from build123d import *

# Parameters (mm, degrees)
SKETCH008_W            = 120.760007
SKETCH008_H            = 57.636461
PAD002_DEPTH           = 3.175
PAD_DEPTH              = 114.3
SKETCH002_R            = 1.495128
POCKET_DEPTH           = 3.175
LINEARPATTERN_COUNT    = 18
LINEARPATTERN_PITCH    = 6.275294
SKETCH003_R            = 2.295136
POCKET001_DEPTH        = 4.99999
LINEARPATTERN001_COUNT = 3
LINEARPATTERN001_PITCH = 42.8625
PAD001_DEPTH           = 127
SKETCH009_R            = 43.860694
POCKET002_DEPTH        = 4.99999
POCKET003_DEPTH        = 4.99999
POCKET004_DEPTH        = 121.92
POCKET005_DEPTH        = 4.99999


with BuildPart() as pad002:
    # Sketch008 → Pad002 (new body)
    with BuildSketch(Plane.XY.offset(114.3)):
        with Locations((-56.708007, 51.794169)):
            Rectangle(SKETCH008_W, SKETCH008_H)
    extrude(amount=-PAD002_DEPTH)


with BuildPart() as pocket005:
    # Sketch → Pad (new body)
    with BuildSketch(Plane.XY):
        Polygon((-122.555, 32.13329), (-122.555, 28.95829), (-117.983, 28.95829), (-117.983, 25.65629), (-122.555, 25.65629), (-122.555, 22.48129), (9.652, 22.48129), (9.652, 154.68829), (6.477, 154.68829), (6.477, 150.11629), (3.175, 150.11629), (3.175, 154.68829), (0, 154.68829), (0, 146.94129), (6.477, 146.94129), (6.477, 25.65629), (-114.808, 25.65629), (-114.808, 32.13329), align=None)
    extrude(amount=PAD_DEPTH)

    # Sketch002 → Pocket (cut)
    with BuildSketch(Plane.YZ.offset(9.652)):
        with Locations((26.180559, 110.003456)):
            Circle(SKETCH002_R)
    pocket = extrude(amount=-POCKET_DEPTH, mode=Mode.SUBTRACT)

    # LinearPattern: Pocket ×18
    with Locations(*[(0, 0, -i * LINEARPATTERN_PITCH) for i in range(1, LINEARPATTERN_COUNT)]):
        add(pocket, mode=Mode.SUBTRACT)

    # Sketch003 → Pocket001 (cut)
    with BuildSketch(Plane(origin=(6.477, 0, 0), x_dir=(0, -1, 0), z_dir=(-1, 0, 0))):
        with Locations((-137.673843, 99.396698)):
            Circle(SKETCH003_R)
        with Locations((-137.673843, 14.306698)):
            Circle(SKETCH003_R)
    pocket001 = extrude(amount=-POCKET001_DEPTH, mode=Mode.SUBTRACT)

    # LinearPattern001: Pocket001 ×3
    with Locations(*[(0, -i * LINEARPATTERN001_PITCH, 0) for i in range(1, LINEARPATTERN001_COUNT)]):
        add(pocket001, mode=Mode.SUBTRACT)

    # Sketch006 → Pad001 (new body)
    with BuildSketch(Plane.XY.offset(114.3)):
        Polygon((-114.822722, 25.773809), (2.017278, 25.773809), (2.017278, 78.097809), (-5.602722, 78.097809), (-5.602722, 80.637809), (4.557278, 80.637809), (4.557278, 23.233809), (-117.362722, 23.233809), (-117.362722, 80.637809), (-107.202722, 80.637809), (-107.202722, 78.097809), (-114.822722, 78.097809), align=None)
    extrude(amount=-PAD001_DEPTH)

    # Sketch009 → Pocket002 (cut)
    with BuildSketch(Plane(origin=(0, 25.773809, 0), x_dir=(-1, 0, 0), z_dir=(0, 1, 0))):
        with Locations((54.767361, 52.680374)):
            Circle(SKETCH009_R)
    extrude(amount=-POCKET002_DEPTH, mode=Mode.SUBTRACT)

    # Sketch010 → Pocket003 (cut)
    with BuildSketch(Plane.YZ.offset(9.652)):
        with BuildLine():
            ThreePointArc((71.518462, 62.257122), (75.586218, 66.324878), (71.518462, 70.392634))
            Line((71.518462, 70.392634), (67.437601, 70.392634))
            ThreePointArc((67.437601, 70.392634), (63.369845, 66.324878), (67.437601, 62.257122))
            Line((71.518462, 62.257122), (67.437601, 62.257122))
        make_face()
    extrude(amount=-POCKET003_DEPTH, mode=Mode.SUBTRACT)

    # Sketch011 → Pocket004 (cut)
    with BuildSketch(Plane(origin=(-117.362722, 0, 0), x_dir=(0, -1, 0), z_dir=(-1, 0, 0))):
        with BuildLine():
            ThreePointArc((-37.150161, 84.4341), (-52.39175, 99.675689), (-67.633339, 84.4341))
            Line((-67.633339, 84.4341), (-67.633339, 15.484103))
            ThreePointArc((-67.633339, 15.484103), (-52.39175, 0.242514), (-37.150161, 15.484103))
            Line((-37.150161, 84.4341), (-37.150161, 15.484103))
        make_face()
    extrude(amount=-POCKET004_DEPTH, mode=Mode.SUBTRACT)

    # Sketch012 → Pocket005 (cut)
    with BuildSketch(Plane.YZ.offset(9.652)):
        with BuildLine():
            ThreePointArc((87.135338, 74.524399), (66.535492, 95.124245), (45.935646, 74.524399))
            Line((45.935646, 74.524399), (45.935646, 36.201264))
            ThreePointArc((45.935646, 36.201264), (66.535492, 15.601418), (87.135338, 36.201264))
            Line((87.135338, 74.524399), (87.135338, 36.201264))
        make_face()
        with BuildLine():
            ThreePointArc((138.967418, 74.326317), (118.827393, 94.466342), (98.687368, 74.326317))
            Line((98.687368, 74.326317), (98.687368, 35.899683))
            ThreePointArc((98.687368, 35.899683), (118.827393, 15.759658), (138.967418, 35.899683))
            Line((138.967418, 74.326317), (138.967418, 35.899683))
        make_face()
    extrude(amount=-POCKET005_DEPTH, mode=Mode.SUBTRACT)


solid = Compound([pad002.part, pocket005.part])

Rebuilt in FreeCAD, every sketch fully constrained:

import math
import FreeCAD as App
import Part
import Sketcher
from FreeCAD import Vector
Q = App.Units.Quantity


def add_polygon(sketch, points):
    """Adds a closed chain of lines whose ends are joined by coincident constraints."""
    first, n = sketch.GeometryCount, len(points)
    for a, b in zip(points, points[1:] + points[:1]):
        sketch.addGeometry(Part.LineSegment(App.Vector(*a, 0), App.Vector(*b, 0)), False)
    for i in range(n):
        sketch.addConstraint(Sketcher.Constraint("Coincident", first + i, 2, first + (i + 1) % n, 1))

doc = App.newDocument("Part")
body = doc.addObject("PartDesign::Body", "Body")

# Sketch on XY plane
sketch1 = body.newObject("Sketcher::SketchObject", "Sketch")
sketch1.AttachmentSupport = (doc.getObject("XY_Plane"), [""])
sketch1.MapMode = "FlatFace"
sketch1.AttachmentOffset = App.Placement(Vector(0, 0, 4.5 * 25.4), App.Rotation())
add_polygon(sketch1, [(-117, 81), (-117, 23), (4, 23), (4, 81)])  # lines 0-3
sketch1.addConstraint([
    Sketcher.Constraint("Vertical", 0),
    Sketcher.Constraint("Horizontal", 1),
    Sketcher.Constraint("Vertical", 2),
    Sketcher.Constraint("Horizontal", 3),
    Sketcher.Constraint("DistanceY", 0, 2, 0, 1, 57.636461),
    Sketcher.Constraint("DistanceY", -1, 1, 2, 2, 80.612399),
    Sketcher.Constraint("DistanceX", 1, 1, 1, 2, 120.760007),
    Sketcher.Constraint("DistanceX", 0, 2, -1, 1, 117.08801),
])
pad1 = body.newObject("PartDesign::Pad", "Pad")
pad1.Profile = sketch1
pad1.Length = Q("0.125 in")
pad1.Reversed = True
body2 = doc.addObject("PartDesign::Body", "Body001")

# Sketch on XY plane
sketch2 = body2.newObject("Sketcher::SketchObject", "Sketch001")
sketch2.AttachmentSupport = (doc.getObject("XY_Plane001"), [""])
sketch2.MapMode = "FlatFace"
add_polygon(sketch2, [(-122.6, 32.1), (-122.6, 29), (-118, 29), (-118, 25.7), (-122.6, 25.7), (-122.6, 22.5), (9.7, 22.5), (9.7, 154.7), (6.5, 154.7), (6.5, 150.1), (3.2, 150.1), (3.2, 154.7), (0, 154.7), (0, 146.9), (6.5, 146.9), (6.5, 25.7), (-114.8, 25.7), (-114.8, 32.1)])  # lines 0-17
sketch2.addConstraint([
    Sketcher.Constraint("Vertical", 0),
    Sketcher.Constraint("Horizontal", 1),
    Sketcher.Constraint("Vertical", 2),
    Sketcher.Constraint("Horizontal", 3),
    Sketcher.Constraint("Vertical", 4),
    Sketcher.Constraint("Horizontal", 5),
    Sketcher.Constraint("Vertical", 6),
    Sketcher.Constraint("Horizontal", 7),
    Sketcher.Constraint("Vertical", 8),
    Sketcher.Constraint("Horizontal", 9),
    Sketcher.Constraint("Vertical", 10),
    Sketcher.Constraint("Horizontal", 11),
    Sketcher.Constraint("Vertical", 12),
    Sketcher.Constraint("Horizontal", 13),
    Sketcher.Constraint("Vertical", 14),
    Sketcher.Constraint("Horizontal", 15),
    Sketcher.Constraint("Vertical", 16),
    Sketcher.Constraint("Horizontal", 17),
    Sketcher.Constraint("PointOnObject", 11, 2, -2),
    Sketcher.Constraint("Horizontal", 7, 2, 10, 2),
    Sketcher.Constraint("Horizontal", 3, 2, 14, 2),
    Sketcher.Constraint("Vertical", 0, 2, 3, 2),
    Sketcher.Constraint("Vertical", 8, 2, 13, 2),
    Sketcher.Constraint("Equal", 7, 11),
    Sketcher.Constraint("Equal", 11, 0),
    Sketcher.Constraint("Equal", 9, 2),
    Sketcher.Constraint("Equal", 0, 4),
    Sketcher.Constraint("Equal", 5, 6),
    Sketcher.Constraint("Equal", 3, 8),
    Sketcher.Constraint("Equal", 17, 12),
    Sketcher.Constraint("DistanceX", 1, 1, 1, 2, Q("0.18 in")),
    Sketcher.Constraint("DistanceX", 9, 2, 9, 1, Q("0.13 in")),
    Sketcher.Constraint("DistanceX", 1, 2, 7, 2, Q("4.9 in")),
    Sketcher.Constraint("DistanceX", 5, 1, 5, 2, Q("5.205 in")),
    Sketcher.Constraint("DistanceX", 15, 2, 15, 1, Q("4.775 in")),
    Sketcher.Constraint("DistanceY", -1, 1, 0, 2, 28.95829),
])
pad2 = body2.newObject("PartDesign::Pad", "Pad001")
pad2.Profile = sketch2
pad2.Length = Q("4.5 in")

# Sketch on YZ plane
sketch3 = body2.newObject("Sketcher::SketchObject", "Sketch002")
sketch3.AttachmentSupport = (doc.getObject("YZ_Plane001"), [""])
sketch3.MapMode = "FlatFace"
sketch3.AttachmentOffset = App.Placement(Vector(0, 0, 0.38 * 25.4), App.Rotation())
sketch3.addGeometry(Part.Circle(Vector(26.2, 110, 0), Vector(0, 0, 1), 1.5), False)
sketch3.addConstraint([
    Sketcher.Constraint("Diameter", 0, 2.990256),
    Sketcher.Constraint("DistanceX", -1, 1, 0, 3, 26.180559),
    Sketcher.Constraint("DistanceY", -1, 1, 0, 3, 110.003456),
])
pocket1 = body2.newObject("PartDesign::Pocket", "Pocket")
pocket1.Profile = sketch3
pocket1.Length = Q("0.125 in")
doc.recompute()

linearpattern = body2.newObject("PartDesign::LinearPattern", "LinearPattern")
linearpattern.Originals = [pocket1]
linearpattern.Direction = (doc.getObject("Z_Axis001"), [""])
linearpattern.Mode = "offset"
linearpattern.Offset = 6.275294
linearpattern.Occurrences = 18
linearpattern.Reversed = True
body2.Tip = linearpattern

# Sketch on YZ plane
sketch4 = body2.newObject("Sketcher::SketchObject", "Sketch003")
sketch4.AttachmentSupport = (doc.getObject("YZ_Plane001"), [""])
sketch4.MapMode = "FlatFace"
sketch4.AttachmentOffset = App.Placement(Vector(0, 0, 0.255 * 25.4), App.Rotation())
sketch4.addGeometry([
    Part.Circle(Vector(137.7, 99.4, 0), Vector(0, 0, 1), 2.3),
    Part.Circle(Vector(137.7, 14.3, 0), Vector(0, 0, 1), 2.3),
], False)
sketch4.addConstraint([
    Sketcher.Constraint("Equal", 0, 1),
    Sketcher.Constraint("Vertical", 0, 3, 1, 3),
    Sketcher.Constraint("DistanceY", 1, 3, 0, 3, Q("3.35 in")),
    Sketcher.Constraint("Diameter", 0, 4.590272),
    Sketcher.Constraint("DistanceY", -1, 1, 0, 3, 99.396698),
    Sketcher.Constraint("DistanceX", -1, 1, 0, 3, 137.673843),
])
pocket2 = body2.newObject("PartDesign::Pocket", "Pocket001")
pocket2.Profile = sketch4
pocket2.Length = 4.99999
pocket2.Reversed = True
doc.recompute()

linearpattern2 = body2.newObject("PartDesign::LinearPattern", "LinearPattern001")
linearpattern2.Originals = [pocket2]
linearpattern2.Direction = (doc.getObject("Y_Axis001"), [""])
linearpattern2.Mode = "offset"
linearpattern2.Offset = Q("1.6875 in")
linearpattern2.Occurrences = 3
linearpattern2.Reversed = True
body2.Tip = linearpattern2

# Sketch on XY plane
sketch5 = body2.newObject("Sketcher::SketchObject", "Sketch004")
sketch5.AttachmentSupport = (doc.getObject("XY_Plane001"), [""])
sketch5.MapMode = "FlatFace"
sketch5.AttachmentOffset = App.Placement(Vector(0, 0, 4.5 * 25.4), App.Rotation())
add_polygon(sketch5, [(2, 25.8), (-114.8, 25.8), (-114.8, 78.1), (-107.2, 78.1), (-107.2, 80.6), (-117.4, 80.6), (-117.4, 23.2), (4.6, 23.2), (4.6, 80.6), (-5.6, 80.6), (-5.6, 78.1), (2, 78.1)])  # lines 0-11
sketch5.addConstraint([
    Sketcher.Constraint("Horizontal", 0),
    Sketcher.Constraint("Vertical", 1),
    Sketcher.Constraint("Horizontal", 2),
    Sketcher.Constraint("Vertical", 3),
    Sketcher.Constraint("Horizontal", 4),
    Sketcher.Constraint("Vertical", 5),
    Sketcher.Constraint("Horizontal", 6),
    Sketcher.Constraint("Vertical", 7),
    Sketcher.Constraint("Horizontal", 8),
    Sketcher.Constraint("Vertical", 9),
    Sketcher.Constraint("Horizontal", 10),
    Sketcher.Constraint("Vertical", 11),
    Sketcher.Constraint("Horizontal", 4, 2, 7, 2),
    Sketcher.Constraint("Horizontal", 2, 2, 9, 2),
    Sketcher.Constraint("Equal", 4, 8),
    Sketcher.Constraint("Equal", 2, 10),
    Sketcher.Constraint("DistanceX", 0, 2, 0, 1, Q("4.6 in")),
    Sketcher.Constraint("DistanceX", 2, 1, 2, 2, Q("0.3 in")),
    Sketcher.Constraint("DistanceX", 4, 2, 4, 1, Q("0.4 in")),
    Sketcher.Constraint("DistanceY", 3, 1, 3, 2, Q("0.1 in")),
    Sketcher.Constraint("DistanceY", 1, 1, 1, 2, Q("2.06 in")),
    Sketcher.Constraint("DistanceY", 5, 2, 5, 1, Q("2.26 in")),
    Sketcher.Constraint("DistanceX", 0, 2, -1, 1, 114.822722),
    Sketcher.Constraint("DistanceY", -1, 1, 0, 2, 25.773809),
])
pad3 = body2.newObject("PartDesign::Pad", "Pad002")
pad3.Profile = sketch5
pad3.Length = Q("5 in")
pad3.Reversed = True

# Sketch on XZ plane
sketch6 = body2.newObject("Sketcher::SketchObject", "Sketch005")
sketch6.AttachmentSupport = (doc.getObject("XZ_Plane001"), [""])
sketch6.MapMode = "FlatFace"
sketch6.AttachmentOffset = App.Placement(Vector(0, 0, -25.773809), App.Rotation())
sketch6.addGeometry(Part.Circle(Vector(-55, 53, 0), Vector(0, 0, 1), 44), False)
sketch6.addConstraint([
    Sketcher.Constraint("Diameter", 0, 87.721388),
    Sketcher.Constraint("DistanceX", 0, 3, -1, 1, 54.767361),
    Sketcher.Constraint("DistanceY", -1, 1, 0, 3, 52.680374),
])
pocket3 = body2.newObject("PartDesign::Pocket", "Pocket002")
pocket3.Profile = sketch6
pocket3.Length = 4.99999
pocket3.Reversed = True

# Sketch on YZ plane
sketch7 = body2.newObject("Sketcher::SketchObject", "Sketch006")
sketch7.AttachmentSupport = (doc.getObject("YZ_Plane001"), [""])
sketch7.MapMode = "FlatFace"
sketch7.AttachmentOffset = App.Placement(Vector(0, 0, 0.38 * 25.4), App.Rotation())
sketch7.addGeometry([
    Part.ArcOfCircle(Part.Circle(Vector(71.5, 66.3, 0), Vector(0, 0, 1), 4.1), math.radians(-90), math.radians(90)),
    Part.LineSegment(Vector(71.5, 70.4, 0), Vector(67.4, 70.4, 0)),
    Part.ArcOfCircle(Part.Circle(Vector(67.4, 66.3, 0), Vector(0, 0, 1), 4.1), math.radians(90), math.radians(270)),
    Part.LineSegment(Vector(67.4, 62.3, 0), Vector(71.5, 62.3, 0)),
], False)
sketch7.addConstraint([
    Sketcher.Constraint("Tangent", 0, 2, 1, 1),
    Sketcher.Constraint("Tangent", 1, 2, 2, 1),
    Sketcher.Constraint("Tangent", 2, 2, 3, 1),
    Sketcher.Constraint("Tangent", 3, 2, 0, 1),
    Sketcher.Constraint("Horizontal", 1),
    Sketcher.Constraint("Horizontal", 3),
    Sketcher.Constraint("Radius", 0, 4.067756),
    Sketcher.Constraint("DistanceX", 1, 2, 1, 1, 4.080861),
    Sketcher.Constraint("DistanceX", -1, 1, 2, 3, 67.437601),
    Sketcher.Constraint("DistanceY", -1, 1, 0, 3, 66.324878),
])
pocket4 = body2.newObject("PartDesign::Pocket", "Pocket003")
pocket4.Profile = sketch7
pocket4.Length = 4.99999

# Sketch on YZ plane
sketch8 = body2.newObject("Sketcher::SketchObject", "Sketch007")
sketch8.AttachmentSupport = (doc.getObject("YZ_Plane001"), [""])
sketch8.MapMode = "FlatFace"
sketch8.AttachmentOffset = App.Placement(Vector(0, 0, -117.362722), App.Rotation())
sketch8.addGeometry([
    Part.ArcOfCircle(Part.Circle(Vector(52, 84, 0), Vector(0, 0, 1), 15), math.radians(0), math.radians(180)),
    Part.LineSegment(Vector(68, 84, 0), Vector(68, 15, 0)),
    Part.ArcOfCircle(Part.Circle(Vector(52, 15, 0), Vector(0, 0, 1), 15), math.radians(180), math.radians(360)),
    Part.LineSegment(Vector(37, 15, 0), Vector(37, 84, 0)),
], False)
sketch8.addConstraint([
    Sketcher.Constraint("Tangent", 0, 1, 1, 1),
    Sketcher.Constraint("Tangent", 1, 2, 2, 2),
    Sketcher.Constraint("Tangent", 2, 1, 3, 1),
    Sketcher.Constraint("Tangent", 3, 2, 0, 2),
    Sketcher.Constraint("Vertical", 1),
    Sketcher.Constraint("Vertical", 3),
    Sketcher.Constraint("Radius", 0, 15.241589),
    Sketcher.Constraint("DistanceY", -1, 1, 0, 3, 84.4341),
    Sketcher.Constraint("DistanceY", 1, 2, 1, 1, 68.949997),
    Sketcher.Constraint("DistanceX", -1, 1, 0, 3, 52.39175),
])
pocket5 = body2.newObject("PartDesign::Pocket", "Pocket004")
pocket5.Profile = sketch8
pocket5.Length = Q("4.8 in")
pocket5.Reversed = True

# Sketch on YZ plane
sketch9 = body2.newObject("Sketcher::SketchObject", "Sketch008")
sketch9.AttachmentSupport = (doc.getObject("YZ_Plane001"), [""])
sketch9.MapMode = "FlatFace"
sketch9.AttachmentOffset = App.Placement(Vector(0, 0, 0.38 * 25.4), App.Rotation())
sketch9.addGeometry([
    Part.ArcOfCircle(Part.Circle(Vector(67, 75, 0), Vector(0, 0, 1), 21), math.radians(0), math.radians(180)),  # 0
    Part.LineSegment(Vector(46, 75, 0), Vector(46, 36, 0)),  # 1
    Part.ArcOfCircle(Part.Circle(Vector(67, 36, 0), Vector(0, 0, 1), 21), math.radians(180), math.radians(360)),  # 2
    Part.LineSegment(Vector(87, 36, 0), Vector(87, 75, 0)),  # 3
    Part.ArcOfCircle(Part.Circle(Vector(119, 74, 0), Vector(0, 0, 1), 20), math.radians(0), math.radians(180)),  # 4
    Part.LineSegment(Vector(99, 74, 0), Vector(99, 36, 0)),  # 5
    Part.ArcOfCircle(Part.Circle(Vector(119, 36, 0), Vector(0, 0, 1), 20), math.radians(180), math.radians(360)),  # 6
    Part.LineSegment(Vector(139, 36, 0), Vector(139, 74, 0)),  # 7
], False)
sketch9.addConstraint([
    Sketcher.Constraint("Tangent", 0, 2, 1, 1),
    Sketcher.Constraint("Tangent", 1, 2, 2, 1),
    Sketcher.Constraint("Tangent", 2, 2, 3, 1),
    Sketcher.Constraint("Tangent", 3, 2, 0, 1),
    Sketcher.Constraint("Tangent", 4, 2, 5, 1),
    Sketcher.Constraint("Tangent", 5, 2, 6, 1),
    Sketcher.Constraint("Tangent", 6, 2, 7, 1),
    Sketcher.Constraint("Tangent", 7, 2, 4, 1),
    Sketcher.Constraint("Vertical", 1),
    Sketcher.Constraint("Vertical", 3),
    Sketcher.Constraint("Vertical", 5),
    Sketcher.Constraint("Vertical", 7),
    Sketcher.Constraint("Radius", 0, 20.599846),
    Sketcher.Constraint("Radius", 4, 20.140025),
    Sketcher.Constraint("DistanceY", -1, 1, 0, 3, 74.524399),
    Sketcher.Constraint("DistanceX", 0, 3, 4, 3, 52.291901),
    Sketcher.Constraint("DistanceY", 1, 2, 1, 1, 38.323135),
    Sketcher.Constraint("DistanceY", 5, 2, 5, 1, 38.426634),
    Sketcher.Constraint("DistanceX", -1, 1, 2, 2, 87.135338),
    Sketcher.Constraint("DistanceY", 4, 3, 0, 3, 0.198082),
])
pocket6 = body2.newObject("PartDesign::Pocket", "Pocket005")
pocket6.Profile = sketch9
pocket6.Length = 4.99999

doc.recompute()
